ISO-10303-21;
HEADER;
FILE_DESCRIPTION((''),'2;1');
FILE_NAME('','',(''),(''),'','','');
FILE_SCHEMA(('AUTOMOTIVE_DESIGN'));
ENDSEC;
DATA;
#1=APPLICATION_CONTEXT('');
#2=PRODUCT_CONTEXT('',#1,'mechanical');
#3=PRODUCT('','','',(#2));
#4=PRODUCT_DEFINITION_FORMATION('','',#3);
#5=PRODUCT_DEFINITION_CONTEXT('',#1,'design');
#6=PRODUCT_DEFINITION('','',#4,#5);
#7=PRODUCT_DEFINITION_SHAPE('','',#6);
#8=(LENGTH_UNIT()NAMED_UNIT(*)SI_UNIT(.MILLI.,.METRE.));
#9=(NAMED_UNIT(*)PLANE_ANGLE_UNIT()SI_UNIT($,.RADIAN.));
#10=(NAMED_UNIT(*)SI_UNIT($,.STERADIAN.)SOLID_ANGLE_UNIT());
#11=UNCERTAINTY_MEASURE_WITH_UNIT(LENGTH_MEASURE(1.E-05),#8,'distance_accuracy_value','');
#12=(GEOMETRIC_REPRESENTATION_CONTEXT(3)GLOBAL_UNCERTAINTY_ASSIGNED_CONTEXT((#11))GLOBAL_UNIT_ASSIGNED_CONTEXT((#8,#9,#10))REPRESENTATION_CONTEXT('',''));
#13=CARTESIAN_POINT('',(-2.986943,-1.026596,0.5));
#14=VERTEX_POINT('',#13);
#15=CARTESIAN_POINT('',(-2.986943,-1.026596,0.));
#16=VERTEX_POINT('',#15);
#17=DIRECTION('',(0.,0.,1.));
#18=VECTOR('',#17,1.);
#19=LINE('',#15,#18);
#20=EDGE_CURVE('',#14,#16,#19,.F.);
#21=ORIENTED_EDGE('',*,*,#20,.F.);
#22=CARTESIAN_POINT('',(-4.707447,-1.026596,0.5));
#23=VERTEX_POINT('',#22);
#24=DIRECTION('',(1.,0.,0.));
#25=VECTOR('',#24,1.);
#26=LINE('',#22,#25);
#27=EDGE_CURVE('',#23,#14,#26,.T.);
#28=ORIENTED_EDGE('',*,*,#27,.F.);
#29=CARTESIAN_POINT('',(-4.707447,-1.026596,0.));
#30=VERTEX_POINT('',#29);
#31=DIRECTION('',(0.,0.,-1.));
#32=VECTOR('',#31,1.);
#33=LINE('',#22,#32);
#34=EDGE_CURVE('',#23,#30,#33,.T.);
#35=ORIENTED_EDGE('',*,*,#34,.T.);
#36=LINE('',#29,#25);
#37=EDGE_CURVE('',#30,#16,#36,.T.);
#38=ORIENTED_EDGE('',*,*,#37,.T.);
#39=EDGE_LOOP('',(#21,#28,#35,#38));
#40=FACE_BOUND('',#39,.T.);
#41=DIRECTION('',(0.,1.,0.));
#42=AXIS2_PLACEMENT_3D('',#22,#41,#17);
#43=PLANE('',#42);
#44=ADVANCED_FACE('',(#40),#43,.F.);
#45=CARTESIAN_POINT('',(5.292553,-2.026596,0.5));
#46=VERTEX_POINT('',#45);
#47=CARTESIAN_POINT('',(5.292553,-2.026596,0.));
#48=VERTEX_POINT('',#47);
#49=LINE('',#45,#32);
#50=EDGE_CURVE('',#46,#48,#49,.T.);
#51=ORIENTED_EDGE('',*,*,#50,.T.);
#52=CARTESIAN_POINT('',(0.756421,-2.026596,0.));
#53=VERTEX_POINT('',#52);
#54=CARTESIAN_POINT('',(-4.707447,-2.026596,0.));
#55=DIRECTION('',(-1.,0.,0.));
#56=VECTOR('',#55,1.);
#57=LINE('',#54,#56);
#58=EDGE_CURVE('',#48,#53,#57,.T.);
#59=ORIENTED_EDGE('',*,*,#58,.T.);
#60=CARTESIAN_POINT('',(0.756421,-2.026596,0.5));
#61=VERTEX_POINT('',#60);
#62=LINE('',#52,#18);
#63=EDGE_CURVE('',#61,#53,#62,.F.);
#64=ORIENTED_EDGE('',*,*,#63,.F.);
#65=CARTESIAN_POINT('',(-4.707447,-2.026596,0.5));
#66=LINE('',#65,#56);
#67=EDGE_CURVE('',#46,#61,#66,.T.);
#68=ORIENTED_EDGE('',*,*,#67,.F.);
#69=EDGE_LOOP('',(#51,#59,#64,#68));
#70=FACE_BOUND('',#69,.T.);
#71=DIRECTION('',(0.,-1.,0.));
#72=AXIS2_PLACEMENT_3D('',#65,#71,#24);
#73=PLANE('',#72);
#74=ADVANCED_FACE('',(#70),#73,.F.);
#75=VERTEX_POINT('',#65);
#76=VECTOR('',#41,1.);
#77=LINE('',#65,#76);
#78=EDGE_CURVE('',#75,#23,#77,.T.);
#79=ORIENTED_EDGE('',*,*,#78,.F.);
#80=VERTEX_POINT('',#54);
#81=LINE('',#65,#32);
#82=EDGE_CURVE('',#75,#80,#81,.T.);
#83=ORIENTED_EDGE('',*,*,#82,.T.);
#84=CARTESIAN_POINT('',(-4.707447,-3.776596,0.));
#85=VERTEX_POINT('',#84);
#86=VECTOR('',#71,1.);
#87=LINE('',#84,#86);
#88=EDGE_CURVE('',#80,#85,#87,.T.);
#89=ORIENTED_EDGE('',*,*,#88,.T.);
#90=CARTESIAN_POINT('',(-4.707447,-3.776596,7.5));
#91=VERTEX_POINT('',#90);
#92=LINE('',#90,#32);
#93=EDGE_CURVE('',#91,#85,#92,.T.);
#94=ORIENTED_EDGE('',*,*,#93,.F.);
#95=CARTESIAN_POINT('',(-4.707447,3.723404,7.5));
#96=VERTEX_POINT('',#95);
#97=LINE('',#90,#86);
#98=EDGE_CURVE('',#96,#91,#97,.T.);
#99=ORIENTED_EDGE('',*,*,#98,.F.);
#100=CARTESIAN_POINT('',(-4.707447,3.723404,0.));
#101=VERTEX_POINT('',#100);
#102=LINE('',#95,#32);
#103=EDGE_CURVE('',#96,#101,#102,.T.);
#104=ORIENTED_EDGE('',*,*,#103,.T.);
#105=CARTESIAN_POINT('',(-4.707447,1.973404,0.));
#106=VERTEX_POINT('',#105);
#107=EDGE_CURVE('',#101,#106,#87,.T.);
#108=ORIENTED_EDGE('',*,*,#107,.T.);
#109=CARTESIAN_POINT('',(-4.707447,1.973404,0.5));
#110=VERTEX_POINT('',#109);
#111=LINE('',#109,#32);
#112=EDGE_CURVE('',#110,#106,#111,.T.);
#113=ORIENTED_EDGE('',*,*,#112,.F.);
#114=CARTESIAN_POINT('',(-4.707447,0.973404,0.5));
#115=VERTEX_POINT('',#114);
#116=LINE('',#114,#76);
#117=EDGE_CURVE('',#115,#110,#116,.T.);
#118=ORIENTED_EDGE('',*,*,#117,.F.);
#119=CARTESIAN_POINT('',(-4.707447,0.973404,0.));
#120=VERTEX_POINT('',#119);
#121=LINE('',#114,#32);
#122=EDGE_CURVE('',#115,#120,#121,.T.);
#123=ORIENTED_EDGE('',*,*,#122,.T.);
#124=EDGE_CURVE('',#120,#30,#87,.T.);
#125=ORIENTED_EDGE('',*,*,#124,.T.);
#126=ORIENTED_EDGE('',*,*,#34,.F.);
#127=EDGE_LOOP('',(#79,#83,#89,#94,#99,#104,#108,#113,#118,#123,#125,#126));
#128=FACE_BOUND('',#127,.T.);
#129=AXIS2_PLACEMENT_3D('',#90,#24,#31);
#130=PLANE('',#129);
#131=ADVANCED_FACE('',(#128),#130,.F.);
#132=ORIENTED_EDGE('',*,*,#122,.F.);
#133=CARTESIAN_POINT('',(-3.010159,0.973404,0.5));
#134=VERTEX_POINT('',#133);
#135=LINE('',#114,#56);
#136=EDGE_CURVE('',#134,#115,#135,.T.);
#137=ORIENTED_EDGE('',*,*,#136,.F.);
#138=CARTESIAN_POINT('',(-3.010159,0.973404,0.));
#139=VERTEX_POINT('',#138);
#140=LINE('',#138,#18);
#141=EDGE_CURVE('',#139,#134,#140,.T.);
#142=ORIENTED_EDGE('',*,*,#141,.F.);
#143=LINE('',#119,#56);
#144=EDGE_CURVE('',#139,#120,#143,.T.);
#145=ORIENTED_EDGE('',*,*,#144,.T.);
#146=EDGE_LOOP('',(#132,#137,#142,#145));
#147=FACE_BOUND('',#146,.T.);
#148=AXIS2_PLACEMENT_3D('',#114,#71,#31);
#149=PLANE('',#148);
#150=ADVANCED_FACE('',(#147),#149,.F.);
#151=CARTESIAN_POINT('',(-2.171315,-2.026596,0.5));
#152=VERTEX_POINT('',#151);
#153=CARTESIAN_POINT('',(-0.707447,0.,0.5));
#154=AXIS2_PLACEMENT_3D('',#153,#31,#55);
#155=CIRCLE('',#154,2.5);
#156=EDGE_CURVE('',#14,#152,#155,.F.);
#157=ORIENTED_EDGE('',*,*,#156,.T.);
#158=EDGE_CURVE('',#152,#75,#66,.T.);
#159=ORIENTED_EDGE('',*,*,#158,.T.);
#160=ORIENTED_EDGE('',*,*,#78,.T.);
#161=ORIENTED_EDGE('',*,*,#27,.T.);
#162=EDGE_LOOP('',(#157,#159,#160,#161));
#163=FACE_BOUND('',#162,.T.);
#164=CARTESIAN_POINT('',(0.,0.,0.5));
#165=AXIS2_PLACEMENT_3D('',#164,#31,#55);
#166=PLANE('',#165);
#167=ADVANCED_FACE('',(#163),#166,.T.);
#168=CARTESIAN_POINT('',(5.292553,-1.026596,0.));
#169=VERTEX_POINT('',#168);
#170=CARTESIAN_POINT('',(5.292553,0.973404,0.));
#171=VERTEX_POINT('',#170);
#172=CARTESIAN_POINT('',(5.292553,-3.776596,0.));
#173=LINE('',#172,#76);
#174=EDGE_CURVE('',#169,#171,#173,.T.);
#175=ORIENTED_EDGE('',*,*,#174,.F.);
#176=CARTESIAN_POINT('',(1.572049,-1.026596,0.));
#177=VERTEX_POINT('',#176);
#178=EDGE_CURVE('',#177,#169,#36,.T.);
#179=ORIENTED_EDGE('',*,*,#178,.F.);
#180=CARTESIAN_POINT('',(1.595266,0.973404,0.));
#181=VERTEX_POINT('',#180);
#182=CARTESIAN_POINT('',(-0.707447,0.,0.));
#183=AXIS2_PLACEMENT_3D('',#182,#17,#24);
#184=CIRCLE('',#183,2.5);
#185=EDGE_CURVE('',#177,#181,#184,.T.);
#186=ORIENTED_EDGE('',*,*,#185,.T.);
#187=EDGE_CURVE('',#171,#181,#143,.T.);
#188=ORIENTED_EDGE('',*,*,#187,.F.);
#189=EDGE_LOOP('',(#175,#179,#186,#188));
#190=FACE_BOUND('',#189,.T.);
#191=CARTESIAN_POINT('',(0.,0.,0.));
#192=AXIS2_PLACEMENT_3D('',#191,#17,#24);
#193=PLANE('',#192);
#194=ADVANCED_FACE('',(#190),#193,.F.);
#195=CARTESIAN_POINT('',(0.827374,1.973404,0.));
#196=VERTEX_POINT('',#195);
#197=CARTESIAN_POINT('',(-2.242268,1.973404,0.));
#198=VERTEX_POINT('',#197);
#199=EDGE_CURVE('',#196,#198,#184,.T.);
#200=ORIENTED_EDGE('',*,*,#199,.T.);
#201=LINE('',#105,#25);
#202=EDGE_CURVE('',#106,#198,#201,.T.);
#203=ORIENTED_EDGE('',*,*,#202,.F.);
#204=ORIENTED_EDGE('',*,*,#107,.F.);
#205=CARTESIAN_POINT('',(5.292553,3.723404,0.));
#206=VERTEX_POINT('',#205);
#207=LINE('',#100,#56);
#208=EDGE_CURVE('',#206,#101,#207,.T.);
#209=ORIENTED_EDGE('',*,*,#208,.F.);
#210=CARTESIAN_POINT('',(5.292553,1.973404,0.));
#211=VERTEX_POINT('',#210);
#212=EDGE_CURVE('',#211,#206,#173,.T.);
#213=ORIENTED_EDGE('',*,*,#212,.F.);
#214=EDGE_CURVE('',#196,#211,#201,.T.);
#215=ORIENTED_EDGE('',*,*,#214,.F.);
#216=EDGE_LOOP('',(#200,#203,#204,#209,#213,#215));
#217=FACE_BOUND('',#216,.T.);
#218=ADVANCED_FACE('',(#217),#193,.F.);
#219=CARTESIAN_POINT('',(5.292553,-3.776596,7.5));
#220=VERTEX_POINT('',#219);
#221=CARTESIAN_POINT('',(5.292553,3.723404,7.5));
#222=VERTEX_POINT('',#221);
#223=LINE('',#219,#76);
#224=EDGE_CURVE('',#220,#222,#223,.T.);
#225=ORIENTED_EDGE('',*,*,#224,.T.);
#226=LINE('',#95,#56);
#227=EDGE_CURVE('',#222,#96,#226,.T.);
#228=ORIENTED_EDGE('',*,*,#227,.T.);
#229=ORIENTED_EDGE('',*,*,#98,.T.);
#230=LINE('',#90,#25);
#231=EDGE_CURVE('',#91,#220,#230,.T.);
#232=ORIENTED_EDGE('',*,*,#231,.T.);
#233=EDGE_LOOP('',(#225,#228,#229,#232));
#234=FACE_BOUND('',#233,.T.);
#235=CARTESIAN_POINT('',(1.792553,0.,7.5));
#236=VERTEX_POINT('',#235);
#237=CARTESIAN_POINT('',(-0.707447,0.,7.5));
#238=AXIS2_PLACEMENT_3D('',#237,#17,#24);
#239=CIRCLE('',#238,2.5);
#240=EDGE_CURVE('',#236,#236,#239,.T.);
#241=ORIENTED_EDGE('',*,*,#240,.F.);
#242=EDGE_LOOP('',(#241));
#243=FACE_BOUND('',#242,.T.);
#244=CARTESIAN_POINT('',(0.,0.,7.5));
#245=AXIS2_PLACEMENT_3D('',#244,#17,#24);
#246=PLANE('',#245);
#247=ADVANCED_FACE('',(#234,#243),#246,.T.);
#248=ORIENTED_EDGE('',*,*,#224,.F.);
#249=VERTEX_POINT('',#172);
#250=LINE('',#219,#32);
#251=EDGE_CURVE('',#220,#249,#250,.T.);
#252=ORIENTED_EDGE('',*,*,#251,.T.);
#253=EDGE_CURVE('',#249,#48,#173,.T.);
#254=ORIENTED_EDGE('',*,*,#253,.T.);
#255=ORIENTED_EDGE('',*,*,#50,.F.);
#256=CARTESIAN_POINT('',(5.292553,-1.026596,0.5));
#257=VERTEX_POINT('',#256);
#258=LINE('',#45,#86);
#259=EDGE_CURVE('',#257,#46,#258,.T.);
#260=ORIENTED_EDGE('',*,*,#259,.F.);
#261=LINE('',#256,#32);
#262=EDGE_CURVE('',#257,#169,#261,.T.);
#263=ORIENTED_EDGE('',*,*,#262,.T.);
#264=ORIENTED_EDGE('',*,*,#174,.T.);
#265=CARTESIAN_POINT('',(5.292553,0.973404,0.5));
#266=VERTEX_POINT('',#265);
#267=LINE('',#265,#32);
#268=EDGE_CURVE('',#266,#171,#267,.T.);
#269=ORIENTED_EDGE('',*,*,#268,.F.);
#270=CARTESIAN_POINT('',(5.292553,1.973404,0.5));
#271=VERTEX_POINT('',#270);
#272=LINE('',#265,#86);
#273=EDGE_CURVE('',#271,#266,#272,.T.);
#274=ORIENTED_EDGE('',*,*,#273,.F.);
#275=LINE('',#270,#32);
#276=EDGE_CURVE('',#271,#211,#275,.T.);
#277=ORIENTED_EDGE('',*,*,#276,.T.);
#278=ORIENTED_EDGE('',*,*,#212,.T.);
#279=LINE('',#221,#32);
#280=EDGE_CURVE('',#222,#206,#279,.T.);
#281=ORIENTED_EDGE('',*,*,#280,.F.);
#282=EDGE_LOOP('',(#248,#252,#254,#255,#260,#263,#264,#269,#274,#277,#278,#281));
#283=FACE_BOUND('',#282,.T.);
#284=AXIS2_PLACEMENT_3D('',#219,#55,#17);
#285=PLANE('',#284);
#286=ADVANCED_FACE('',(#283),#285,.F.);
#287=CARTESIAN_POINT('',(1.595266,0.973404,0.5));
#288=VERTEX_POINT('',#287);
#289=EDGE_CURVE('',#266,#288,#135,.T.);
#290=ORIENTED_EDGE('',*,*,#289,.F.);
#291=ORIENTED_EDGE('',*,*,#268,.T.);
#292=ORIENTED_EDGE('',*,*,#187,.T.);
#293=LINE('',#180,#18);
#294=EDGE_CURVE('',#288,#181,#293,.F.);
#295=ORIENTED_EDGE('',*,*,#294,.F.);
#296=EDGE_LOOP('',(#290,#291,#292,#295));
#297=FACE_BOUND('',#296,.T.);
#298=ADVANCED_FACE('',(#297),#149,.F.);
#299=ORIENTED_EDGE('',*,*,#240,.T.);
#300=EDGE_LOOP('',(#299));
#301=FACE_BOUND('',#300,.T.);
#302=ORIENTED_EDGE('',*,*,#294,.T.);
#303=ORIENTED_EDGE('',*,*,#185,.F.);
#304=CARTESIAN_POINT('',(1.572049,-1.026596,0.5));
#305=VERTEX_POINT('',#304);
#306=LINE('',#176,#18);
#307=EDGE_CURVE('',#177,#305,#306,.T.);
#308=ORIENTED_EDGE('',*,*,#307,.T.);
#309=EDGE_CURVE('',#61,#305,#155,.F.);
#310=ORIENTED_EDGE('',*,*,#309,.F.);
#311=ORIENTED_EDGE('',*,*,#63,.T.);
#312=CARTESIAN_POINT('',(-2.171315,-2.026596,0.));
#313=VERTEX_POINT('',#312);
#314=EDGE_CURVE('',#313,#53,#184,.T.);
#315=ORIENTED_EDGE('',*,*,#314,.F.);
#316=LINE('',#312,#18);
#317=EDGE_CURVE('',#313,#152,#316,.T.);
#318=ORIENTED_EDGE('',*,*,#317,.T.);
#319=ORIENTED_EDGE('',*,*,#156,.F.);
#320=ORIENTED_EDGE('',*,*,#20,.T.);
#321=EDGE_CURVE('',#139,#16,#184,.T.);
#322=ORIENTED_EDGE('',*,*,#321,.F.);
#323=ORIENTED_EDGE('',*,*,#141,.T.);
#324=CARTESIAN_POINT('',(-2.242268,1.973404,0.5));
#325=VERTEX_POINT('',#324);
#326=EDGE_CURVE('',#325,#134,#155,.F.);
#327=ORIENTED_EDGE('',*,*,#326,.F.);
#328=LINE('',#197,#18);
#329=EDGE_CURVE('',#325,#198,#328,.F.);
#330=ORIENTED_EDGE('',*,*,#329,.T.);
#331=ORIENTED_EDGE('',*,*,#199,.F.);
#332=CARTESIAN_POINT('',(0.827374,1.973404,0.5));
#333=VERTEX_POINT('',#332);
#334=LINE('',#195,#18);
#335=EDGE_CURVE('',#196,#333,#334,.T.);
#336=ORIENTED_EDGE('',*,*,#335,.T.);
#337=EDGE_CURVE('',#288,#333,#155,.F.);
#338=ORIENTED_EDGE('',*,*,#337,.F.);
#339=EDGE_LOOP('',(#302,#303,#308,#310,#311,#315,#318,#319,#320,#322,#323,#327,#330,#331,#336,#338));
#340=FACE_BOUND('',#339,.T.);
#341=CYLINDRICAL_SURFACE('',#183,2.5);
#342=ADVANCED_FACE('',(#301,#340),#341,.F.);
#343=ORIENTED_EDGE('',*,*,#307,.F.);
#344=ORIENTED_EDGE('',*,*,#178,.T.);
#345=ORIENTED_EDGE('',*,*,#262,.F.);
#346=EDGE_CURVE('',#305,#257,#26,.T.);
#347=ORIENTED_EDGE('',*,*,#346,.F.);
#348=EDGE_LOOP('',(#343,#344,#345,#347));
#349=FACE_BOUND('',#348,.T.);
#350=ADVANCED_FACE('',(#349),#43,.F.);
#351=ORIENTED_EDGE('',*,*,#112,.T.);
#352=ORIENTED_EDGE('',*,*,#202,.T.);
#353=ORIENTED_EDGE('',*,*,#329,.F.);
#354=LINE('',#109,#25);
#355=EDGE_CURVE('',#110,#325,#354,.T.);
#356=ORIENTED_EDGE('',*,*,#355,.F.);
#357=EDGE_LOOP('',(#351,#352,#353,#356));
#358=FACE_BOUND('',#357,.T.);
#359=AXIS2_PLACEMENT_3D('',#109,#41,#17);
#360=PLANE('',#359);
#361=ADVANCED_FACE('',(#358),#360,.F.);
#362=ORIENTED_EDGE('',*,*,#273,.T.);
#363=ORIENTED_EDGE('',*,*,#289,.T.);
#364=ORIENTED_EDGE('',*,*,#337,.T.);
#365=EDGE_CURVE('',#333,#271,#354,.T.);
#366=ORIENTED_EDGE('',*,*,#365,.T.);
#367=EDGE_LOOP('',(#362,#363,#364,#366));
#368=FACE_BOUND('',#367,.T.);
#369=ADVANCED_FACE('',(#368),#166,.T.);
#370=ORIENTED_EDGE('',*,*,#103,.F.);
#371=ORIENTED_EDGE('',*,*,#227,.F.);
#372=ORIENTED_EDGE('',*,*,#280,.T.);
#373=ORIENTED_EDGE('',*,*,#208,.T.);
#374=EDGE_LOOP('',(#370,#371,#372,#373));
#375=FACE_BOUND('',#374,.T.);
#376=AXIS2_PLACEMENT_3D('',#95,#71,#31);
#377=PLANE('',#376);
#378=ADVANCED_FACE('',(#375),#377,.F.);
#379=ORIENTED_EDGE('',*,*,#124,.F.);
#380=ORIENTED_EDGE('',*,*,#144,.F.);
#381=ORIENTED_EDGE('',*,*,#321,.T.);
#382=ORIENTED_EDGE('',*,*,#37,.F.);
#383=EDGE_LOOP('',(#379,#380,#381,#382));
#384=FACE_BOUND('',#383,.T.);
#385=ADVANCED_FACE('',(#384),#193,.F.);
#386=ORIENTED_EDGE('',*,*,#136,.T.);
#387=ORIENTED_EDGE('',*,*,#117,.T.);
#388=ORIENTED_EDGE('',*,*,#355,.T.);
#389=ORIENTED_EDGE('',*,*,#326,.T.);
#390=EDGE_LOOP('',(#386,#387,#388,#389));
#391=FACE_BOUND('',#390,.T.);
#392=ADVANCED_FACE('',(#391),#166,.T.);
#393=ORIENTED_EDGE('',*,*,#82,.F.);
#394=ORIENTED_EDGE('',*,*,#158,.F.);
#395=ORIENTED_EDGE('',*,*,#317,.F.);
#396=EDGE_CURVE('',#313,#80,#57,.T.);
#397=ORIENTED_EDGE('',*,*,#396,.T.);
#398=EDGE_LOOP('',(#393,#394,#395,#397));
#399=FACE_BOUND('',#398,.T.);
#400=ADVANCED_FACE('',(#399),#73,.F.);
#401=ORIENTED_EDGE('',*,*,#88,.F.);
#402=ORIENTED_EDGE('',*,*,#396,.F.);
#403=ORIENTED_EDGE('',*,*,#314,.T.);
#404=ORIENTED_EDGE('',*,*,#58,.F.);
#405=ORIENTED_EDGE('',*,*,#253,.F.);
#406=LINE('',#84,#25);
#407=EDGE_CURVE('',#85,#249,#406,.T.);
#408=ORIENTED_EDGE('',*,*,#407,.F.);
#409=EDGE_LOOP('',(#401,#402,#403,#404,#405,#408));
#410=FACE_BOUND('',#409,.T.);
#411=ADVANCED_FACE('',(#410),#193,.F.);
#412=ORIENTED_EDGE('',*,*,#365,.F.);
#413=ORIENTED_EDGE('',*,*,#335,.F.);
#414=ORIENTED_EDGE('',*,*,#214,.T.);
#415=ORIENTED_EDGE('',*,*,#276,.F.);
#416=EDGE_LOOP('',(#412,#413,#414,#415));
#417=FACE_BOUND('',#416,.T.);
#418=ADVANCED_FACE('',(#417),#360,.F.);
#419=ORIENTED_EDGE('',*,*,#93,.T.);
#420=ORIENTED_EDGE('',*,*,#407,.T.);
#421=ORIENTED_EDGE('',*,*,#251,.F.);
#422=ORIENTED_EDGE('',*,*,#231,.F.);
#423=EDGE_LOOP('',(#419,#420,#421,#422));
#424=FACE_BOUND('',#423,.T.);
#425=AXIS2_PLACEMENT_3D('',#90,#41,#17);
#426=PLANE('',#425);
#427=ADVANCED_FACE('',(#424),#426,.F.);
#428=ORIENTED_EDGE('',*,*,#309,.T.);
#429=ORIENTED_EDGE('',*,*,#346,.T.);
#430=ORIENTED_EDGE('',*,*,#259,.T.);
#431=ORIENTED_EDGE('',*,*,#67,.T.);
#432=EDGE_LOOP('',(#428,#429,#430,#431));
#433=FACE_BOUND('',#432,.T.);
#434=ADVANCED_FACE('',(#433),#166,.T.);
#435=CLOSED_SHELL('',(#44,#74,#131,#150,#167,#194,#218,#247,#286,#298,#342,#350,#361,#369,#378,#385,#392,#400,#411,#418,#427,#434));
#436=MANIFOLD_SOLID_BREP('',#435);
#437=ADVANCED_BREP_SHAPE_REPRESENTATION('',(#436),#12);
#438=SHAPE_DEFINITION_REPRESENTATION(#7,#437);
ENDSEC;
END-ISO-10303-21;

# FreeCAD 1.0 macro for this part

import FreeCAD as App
import Part
import Sketcher

doc = App.newDocument("Part")
body = doc.addObject("PartDesign::Body", "Body")

sketch1 = doc.addObject("Sketcher::SketchObject", "Sketch")
body.addObject(sketch1)
sketch1.AttachmentSupport = (doc.XY_Plane, [""])
sketch1.MapMode = "FlatFace"
sketch1.addGeometry(Part.LineSegment(App.Vector(-5, -4, 0), App.Vector(5, -4, 0)), False)
sketch1.addGeometry(Part.LineSegment(App.Vector(5, -4, 0), App.Vector(5, 4, 0)), False)
sketch1.addGeometry(Part.LineSegment(App.Vector(5, 4, 0), App.Vector(-5, 4, 0)), False)
sketch1.addGeometry(Part.LineSegment(App.Vector(-5, 4, 0), App.Vector(-5, -4, 0)), False)
sketch1.addConstraint(Sketcher.Constraint("Coincident", 0, 2, 1, 1))
sketch1.addConstraint(Sketcher.Constraint("Coincident", 1, 2, 2, 1))
sketch1.addConstraint(Sketcher.Constraint("Coincident", 2, 2, 3, 1))
sketch1.addConstraint(Sketcher.Constraint("Coincident", 3, 2, 0, 1))
sketch1.addConstraint(Sketcher.Constraint("Horizontal", 0))
sketch1.addConstraint(Sketcher.Constraint("Vertical", 1))
sketch1.addConstraint(Sketcher.Constraint("Horizontal", 2))
sketch1.addConstraint(Sketcher.Constraint("Vertical", 3))
sketch1.addConstraint(Sketcher.Constraint("DistanceX", 0, 1, 0, 2, 10.0))
sketch1.addConstraint(Sketcher.Constraint("DistanceY", 1, 1, 1, 2, 7.5))
sketch1.addConstraint(Sketcher.Constraint("DistanceX", -1, 1, 0, 2, 5.292553))
sketch1.addConstraint(Sketcher.Constraint("DistanceY", 0, 2, -1, 1, 3.776596))
pad1 = doc.addObject("PartDesign::Pad", "Pad")
body.addObject(pad1)
pad1.Profile = sketch1
pad1.Length = 7.5

sketch2 = doc.addObject("Sketcher::SketchObject", "Sketch001")
body.addObject(sketch2)
sketch2.AttachmentSupport = (doc.XY_Plane, [""])
sketch2.MapMode = "FlatFace"
sketch2.AttachmentOffset = App.Placement(App.Vector(0, 0, 7.5), App.Rotation())
sketch2.addGeometry(Part.Circle(App.Vector(-0.7, 0, 0), App.Vector(0, 0, 1), 2.5), False)
sketch2.addConstraint(Sketcher.Constraint("PointOnObject", 0, 3, -1))
sketch2.addConstraint(Sketcher.Constraint("Diameter", 0, 5.0))
sketch2.addConstraint(Sketcher.Constraint("DistanceX", 0, 3, -1, 1, 0.707447))
pocket1 = doc.addObject("PartDesign::Pocket", "Pocket")
body.addObject(pocket1)
pocket1.Profile = sketch2
pocket1.Length = 7.5

sketch3 = doc.addObject("Sketcher::SketchObject", "Sketch002")
body.addObject(sketch3)
sketch3.AttachmentSupport = (doc.XY_Plane, [""])
sketch3.MapMode = "FlatFace"
sketch3.addGeometry(Part.LineSegment(App.Vector(-4.7, -2, 0), App.Vector(-4.7, -1, 0)), False)
sketch3.addGeometry(Part.LineSegment(App.Vector(-4.7, -1, 0), App.Vector(5.3, -1, 0)), False)
sketch3.addGeometry(Part.LineSegment(App.Vector(5.3, -1, 0), App.Vector(5.3, -2, 0)), False)
sketch3.addGeometry(Part.LineSegment(App.Vector(5.3, -2, 0), App.Vector(-4.7, -2, 0)), False)
sketch3.addGeometry(Part.LineSegment(App.Vector(-4.7, 1, 0), App.Vector(-4.7, 2, 0)), False)
sketch3.addGeometry(Part.LineSegment(App.Vector(-4.7, 2, 0), App.Vector(5.3, 2, 0)), False)
sketch3.addGeometry(Part.LineSegment(App.Vector(5.3, 2, 0), App.Vector(5.3, 1, 0)), False)
sketch3.addGeometry(Part.LineSegment(App.Vector(5.3, 1, 0), App.Vector(-4.7, 1, 0)), False)
sketch3.addConstraint(Sketcher.Constraint("Coincident", 0, 2, 1, 1))
sketch3.addConstraint(Sketcher.Constraint("Coincident", 1, 2, 2, 1))
sketch3.addConstraint(Sketcher.Constraint("Coincident", 2, 2, 3, 1))
sketch3.addConstraint(Sketcher.Constraint("Coincident", 3, 2, 0, 1))
sketch3.addConstraint(Sketcher.Constraint("Coincident", 4, 2, 5, 1))
sketch3.addConstraint(Sketcher.Constraint("Coincident", 5, 2, 6, 1))
sketch3.addConstraint(Sketcher.Constraint("Coincident", 6, 2, 7, 1))
sketch3.addConstraint(Sketcher.Constraint("Coincident", 7, 2, 4, 1))
sketch3.addConstraint(Sketcher.Constraint("Vertical", 0))
sketch3.addConstraint(Sketcher.Constraint("Horizontal", 1))
sketch3.addConstraint(Sketcher.Constraint("Vertical", 2))
sketch3.addConstraint(Sketcher.Constraint("Horizontal", 3))
sketch3.addConstraint(Sketcher.Constraint("Vertical", 4))
sketch3.addConstraint(Sketcher.Constraint("Horizontal", 5))
sketch3.addConstraint(Sketcher.Constraint("Vertical", 6))
sketch3.addConstraint(Sketcher.Constraint("Horizontal", 7))
sketch3.addConstraint(Sketcher.Constraint("Vertical", 3, 2, 4, 2))
sketch3.addConstraint(Sketcher.Constraint("Vertical", 2, 2, 5, 2))
sketch3.addConstraint(Sketcher.Constraint("Equal", 2, 4))
sketch3.addConstraint(Sketcher.Constraint("DistanceX", 1, 1, 1, 2, 10.0))
sketch3.addConstraint(Sketcher.Constraint("DistanceY", 0, 1, 0, 2, 1.0))
sketch3.addConstraint(Sketcher.Constraint("DistanceY", 0, 2, 4, 2, 3.0))
sketch3.addConstraint(Sketcher.Constraint("DistanceX", 0, 2, -1, 1, 4.707447))
sketch3.addConstraint(Sketcher.Constraint("DistanceY", 0, 2, -1, 1, 1.026596))
pocket2 = doc.addObject("PartDesign::Pocket", "Pocket001")
body.addObject(pocket2)
pocket2.Profile = sketch3
pocket2.Length = 0.5
pocket2.Reversed = True

doc.recompute()
